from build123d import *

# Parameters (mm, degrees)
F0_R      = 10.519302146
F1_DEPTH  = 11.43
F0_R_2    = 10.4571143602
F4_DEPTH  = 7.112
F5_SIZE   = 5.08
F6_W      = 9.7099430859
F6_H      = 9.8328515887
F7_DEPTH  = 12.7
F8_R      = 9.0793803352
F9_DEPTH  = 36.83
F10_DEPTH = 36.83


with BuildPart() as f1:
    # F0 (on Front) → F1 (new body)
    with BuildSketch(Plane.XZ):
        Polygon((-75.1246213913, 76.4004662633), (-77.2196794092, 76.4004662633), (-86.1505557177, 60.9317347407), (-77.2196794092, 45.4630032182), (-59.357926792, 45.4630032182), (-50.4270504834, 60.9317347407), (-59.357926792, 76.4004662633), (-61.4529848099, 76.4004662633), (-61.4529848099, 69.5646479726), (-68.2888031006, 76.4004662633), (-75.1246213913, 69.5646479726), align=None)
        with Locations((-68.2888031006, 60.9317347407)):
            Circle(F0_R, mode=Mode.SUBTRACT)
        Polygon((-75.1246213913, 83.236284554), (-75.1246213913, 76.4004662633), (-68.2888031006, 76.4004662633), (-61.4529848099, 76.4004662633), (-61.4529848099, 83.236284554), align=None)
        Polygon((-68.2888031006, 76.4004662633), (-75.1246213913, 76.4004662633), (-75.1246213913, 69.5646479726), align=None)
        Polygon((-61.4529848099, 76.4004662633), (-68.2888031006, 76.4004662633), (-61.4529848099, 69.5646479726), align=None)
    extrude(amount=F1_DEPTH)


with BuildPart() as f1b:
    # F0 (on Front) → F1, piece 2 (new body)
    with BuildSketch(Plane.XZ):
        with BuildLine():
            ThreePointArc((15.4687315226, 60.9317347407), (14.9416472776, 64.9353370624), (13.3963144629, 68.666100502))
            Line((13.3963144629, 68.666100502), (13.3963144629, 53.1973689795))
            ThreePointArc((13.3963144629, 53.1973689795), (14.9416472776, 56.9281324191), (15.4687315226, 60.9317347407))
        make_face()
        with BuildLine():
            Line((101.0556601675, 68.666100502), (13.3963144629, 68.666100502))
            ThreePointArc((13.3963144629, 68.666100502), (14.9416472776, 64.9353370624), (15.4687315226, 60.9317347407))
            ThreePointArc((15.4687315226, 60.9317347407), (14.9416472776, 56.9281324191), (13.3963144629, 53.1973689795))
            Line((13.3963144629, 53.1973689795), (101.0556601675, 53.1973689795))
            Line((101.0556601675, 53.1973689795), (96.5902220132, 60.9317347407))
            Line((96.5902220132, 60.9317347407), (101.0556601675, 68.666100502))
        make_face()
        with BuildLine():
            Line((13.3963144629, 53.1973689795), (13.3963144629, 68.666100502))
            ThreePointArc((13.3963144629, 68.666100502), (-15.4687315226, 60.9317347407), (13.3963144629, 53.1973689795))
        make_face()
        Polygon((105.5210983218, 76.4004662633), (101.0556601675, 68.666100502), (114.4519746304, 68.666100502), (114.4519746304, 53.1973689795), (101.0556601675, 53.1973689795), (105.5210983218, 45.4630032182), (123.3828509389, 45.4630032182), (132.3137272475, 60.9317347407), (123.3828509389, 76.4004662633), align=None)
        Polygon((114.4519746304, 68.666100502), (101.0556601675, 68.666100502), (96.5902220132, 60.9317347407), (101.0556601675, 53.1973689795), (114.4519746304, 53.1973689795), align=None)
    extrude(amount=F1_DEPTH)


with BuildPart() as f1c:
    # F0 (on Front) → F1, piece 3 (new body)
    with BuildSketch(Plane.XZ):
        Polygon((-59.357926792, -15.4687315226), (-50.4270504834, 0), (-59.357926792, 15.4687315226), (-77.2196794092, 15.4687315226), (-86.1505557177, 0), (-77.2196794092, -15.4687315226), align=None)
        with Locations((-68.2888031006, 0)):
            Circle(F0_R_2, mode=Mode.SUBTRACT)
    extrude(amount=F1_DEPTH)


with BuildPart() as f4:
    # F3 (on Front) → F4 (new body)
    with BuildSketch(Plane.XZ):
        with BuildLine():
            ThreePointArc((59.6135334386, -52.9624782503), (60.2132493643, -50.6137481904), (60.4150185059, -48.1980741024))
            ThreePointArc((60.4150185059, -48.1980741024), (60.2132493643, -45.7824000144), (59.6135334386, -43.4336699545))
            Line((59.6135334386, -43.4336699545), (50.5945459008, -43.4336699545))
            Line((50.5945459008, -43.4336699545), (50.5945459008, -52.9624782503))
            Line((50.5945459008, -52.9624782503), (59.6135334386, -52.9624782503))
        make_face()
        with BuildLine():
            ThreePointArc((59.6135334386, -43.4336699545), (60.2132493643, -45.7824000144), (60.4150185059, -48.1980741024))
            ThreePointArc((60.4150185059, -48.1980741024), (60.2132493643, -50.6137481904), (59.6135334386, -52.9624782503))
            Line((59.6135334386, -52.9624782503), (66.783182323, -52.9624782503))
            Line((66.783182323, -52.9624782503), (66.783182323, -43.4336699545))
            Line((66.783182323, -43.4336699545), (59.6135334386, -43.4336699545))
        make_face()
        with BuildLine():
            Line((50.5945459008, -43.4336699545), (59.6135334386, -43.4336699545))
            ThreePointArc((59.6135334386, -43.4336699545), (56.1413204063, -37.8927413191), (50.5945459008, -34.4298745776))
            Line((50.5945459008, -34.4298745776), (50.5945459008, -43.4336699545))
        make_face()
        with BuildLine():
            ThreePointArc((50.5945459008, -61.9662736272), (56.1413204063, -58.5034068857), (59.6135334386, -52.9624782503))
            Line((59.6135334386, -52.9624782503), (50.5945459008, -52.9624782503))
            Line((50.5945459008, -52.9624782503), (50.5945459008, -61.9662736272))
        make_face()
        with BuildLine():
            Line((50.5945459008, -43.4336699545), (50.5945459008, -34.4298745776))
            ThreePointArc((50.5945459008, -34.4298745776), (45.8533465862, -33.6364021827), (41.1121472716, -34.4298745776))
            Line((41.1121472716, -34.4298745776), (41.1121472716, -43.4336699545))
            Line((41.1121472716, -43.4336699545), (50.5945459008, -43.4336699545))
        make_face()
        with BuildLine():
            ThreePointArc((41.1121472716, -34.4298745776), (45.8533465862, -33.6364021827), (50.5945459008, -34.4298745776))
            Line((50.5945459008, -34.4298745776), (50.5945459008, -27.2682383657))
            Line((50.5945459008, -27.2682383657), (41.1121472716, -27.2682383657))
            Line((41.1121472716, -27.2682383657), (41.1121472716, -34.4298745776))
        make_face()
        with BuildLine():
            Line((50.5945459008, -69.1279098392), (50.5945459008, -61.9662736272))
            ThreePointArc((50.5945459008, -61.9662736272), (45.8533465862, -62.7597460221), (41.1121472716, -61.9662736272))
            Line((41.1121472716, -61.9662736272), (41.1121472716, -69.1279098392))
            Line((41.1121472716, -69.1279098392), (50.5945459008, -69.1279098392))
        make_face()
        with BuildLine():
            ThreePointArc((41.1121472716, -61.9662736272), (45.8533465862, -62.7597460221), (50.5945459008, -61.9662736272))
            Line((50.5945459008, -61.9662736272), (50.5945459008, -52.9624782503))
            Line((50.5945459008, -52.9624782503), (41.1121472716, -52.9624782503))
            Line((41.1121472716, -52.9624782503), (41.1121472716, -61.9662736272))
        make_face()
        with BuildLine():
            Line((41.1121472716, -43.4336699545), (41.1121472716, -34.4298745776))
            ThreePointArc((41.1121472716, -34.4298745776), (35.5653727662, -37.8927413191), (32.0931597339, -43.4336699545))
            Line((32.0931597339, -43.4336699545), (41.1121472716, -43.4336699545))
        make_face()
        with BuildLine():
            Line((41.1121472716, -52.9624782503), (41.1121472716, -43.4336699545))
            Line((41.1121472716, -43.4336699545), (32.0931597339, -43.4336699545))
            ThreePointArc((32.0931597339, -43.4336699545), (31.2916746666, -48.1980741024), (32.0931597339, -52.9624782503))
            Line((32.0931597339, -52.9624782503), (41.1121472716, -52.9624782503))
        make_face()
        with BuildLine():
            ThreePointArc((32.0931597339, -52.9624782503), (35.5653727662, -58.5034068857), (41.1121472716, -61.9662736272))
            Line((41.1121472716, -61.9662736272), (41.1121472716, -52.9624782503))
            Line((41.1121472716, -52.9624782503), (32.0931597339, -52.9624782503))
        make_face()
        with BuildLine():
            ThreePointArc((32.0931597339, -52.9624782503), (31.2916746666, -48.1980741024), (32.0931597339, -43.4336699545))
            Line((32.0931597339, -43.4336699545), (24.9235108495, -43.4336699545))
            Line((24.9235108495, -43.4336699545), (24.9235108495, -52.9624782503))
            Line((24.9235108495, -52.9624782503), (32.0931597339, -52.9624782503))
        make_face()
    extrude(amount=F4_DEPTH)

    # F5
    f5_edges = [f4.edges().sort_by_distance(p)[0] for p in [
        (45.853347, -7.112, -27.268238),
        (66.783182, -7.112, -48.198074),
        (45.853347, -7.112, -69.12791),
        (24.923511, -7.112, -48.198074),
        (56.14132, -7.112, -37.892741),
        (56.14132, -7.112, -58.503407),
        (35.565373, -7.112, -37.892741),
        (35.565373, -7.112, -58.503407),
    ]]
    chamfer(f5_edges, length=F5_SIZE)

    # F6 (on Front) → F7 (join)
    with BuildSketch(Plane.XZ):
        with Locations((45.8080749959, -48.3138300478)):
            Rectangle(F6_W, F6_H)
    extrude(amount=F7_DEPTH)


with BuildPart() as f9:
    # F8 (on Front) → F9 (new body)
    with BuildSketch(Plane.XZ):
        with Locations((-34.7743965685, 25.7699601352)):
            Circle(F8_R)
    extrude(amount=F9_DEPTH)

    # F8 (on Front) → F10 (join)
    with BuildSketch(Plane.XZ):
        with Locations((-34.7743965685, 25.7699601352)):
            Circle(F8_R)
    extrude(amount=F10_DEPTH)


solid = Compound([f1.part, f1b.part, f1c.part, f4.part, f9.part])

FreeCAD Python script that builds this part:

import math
import FreeCAD as App
import Part
import Sketcher
from FreeCAD import Vector
Q = App.Units.Quantity


def edges_at(feature, points):
    """Names of the edges that pass closest to the given points."""
    edges = feature.Shape.Edges
    near = lambda p: min(range(len(edges)), key=lambda i: edges[i].distToShape(Part.Vertex(*p))[0])
    return sorted({f"Edge{near(p) + 1}" for p in points})

doc = App.newDocument("Part")
body = doc.addObject("PartDesign::Body", "Body")

# Sketch on XZ plane
sketch1 = doc.addObject("Sketcher::SketchObject", "Sketch")
body.addObject(sketch1)
sketch1.AttachmentSupport = (doc.XZ_Plane, [""])
sketch1.MapMode = "FlatFace"
sketch1.addGeometry([
    Part.LineSegment(Vector(-59.357927, 76.400466, 0), Vector(-61.452985, 76.400466, 0)),  # 0
    Part.LineSegment(Vector(-61.452985, 76.400466, 0), Vector(-61.452985, 83.236285, 0)),  # 1
    Part.LineSegment(Vector(-61.452985, 83.236285, 0), Vector(-75.124621, 83.236285, 0)),  # 2
    Part.LineSegment(Vector(-75.124621, 83.236285, 0), Vector(-75.124621, 76.400466, 0)),  # 3
    Part.LineSegment(Vector(-75.124621, 76.400466, 0), Vector(-77.219679, 76.400466, 0)),  # 4
    Part.LineSegment(Vector(-77.219679, 76.400466, 0), Vector(-86.150556, 60.931735, 0)),  # 5
    Part.LineSegment(Vector(-86.150556, 60.931735, 0), Vector(-77.219679, 45.463003, 0)),  # 6
    Part.LineSegment(Vector(-77.219679, 45.463003, 0), Vector(-59.357927, 45.463003, 0)),  # 7
    Part.LineSegment(Vector(-59.357927, 45.463003, 0), Vector(-50.42705, 60.931735, 0)),  # 8
    Part.LineSegment(Vector(-50.42705, 60.931735, 0), Vector(-59.357927, 76.400466, 0)),  # 9
    Part.Circle(Vector(-68.288803, 60.931735, 0), Vector(0, 0, 1), 10.519302),  # 10
], False)
sketch1.addConstraint([
    Sketcher.Constraint("Coincident", 0, 2, 1, 1),
    Sketcher.Constraint("Coincident", 1, 2, 2, 1),
    Sketcher.Constraint("Coincident", 2, 2, 3, 1),
    Sketcher.Constraint("Coincident", 3, 2, 4, 1),
    Sketcher.Constraint("Coincident", 4, 2, 5, 1),
    Sketcher.Constraint("Coincident", 5, 2, 6, 1),
    Sketcher.Constraint("Coincident", 6, 2, 7, 1),
    Sketcher.Constraint("Coincident", 7, 2, 8, 1),
    Sketcher.Constraint("Coincident", 8, 2, 9, 1),
    Sketcher.Constraint("Coincident", 9, 2, 0, 1),
    Sketcher.Constraint("Horizontal", 0),
    Sketcher.Constraint("Vertical", 1),
    Sketcher.Constraint("Horizontal", 2),
    Sketcher.Constraint("Vertical", 3),
    Sketcher.Constraint("Horizontal", 4),
    Sketcher.Constraint("Horizontal", 7),
    Sketcher.Constraint("Parallel", 5, 8),
    Sketcher.Constraint("Parallel", 6, 9),
    Sketcher.Constraint("Horizontal", 0, 2, 3, 2),
    Sketcher.Constraint("Horizontal", 10, 3, 5, 2),
    Sketcher.Constraint("Horizontal", 5, 2, 8, 2),
    Sketcher.Constraint("Vertical", 4, 2, 6, 2),
    Sketcher.Constraint("Vertical", 7, 2, 9, 2),
    Sketcher.Constraint("Equal", 0, 4),
    Sketcher.Constraint("Angle", 5, Q("-120 deg")),
    Sketcher.Constraint("Diameter", 10, 21.038604),
    Sketcher.Constraint("DistanceX", 0, 2, 0, 1, 2.095058),
    Sketcher.Constraint("DistanceY", 1, 1, 1, 2, 6.835818),
    Sketcher.Constraint("DistanceX", 2, 2, 2, 1, 13.671637),
    Sketcher.Constraint("DistanceX", 2, 2, -1, 1, 75.124621),
    Sketcher.Constraint("DistanceX", 8, 2, -1, 1, 50.42705),
    Sketcher.Constraint("DistanceX", 10, 3, 0, 2, 6.835818),
    Sketcher.Constraint("DistanceY", -1, 1, 10, 3, 60.931735),
])
pad1 = doc.addObject("PartDesign::Pad", "Pad")
body.addObject(pad1)
pad1.Profile = sketch1
pad1.Length = Q("0.45 in")
body2 = doc.addObject("PartDesign::Body", "Body001")

# Sketch on XZ plane
sketch2 = doc.addObject("Sketcher::SketchObject", "Sketch001")
body2.addObject(sketch2)
sketch2.AttachmentSupport = (doc.getObject("XZ_Plane001"), [""])
sketch2.MapMode = "FlatFace"
sketch2.addGeometry([
    Part.LineSegment(Vector(13.396314, 53.197369, 0), Vector(101.05566, 53.197369, 0)),  # 0
    Part.LineSegment(Vector(101.05566, 53.197369, 0), Vector(105.521098, 45.463003, 0)),  # 1
    Part.LineSegment(Vector(105.521098, 45.463003, 0), Vector(123.382851, 45.463003, 0)),  # 2
    Part.LineSegment(Vector(123.382851, 45.463003, 0), Vector(132.313727, 60.931735, 0)),  # 3
    Part.LineSegment(Vector(132.313727, 60.931735, 0), Vector(123.382851, 76.400466, 0)),  # 4
    Part.LineSegment(Vector(123.382851, 76.400466, 0), Vector(105.521098, 76.400466, 0)),  # 5
    Part.LineSegment(Vector(105.521098, 76.400466, 0), Vector(101.05566, 68.666101, 0)),  # 6
    Part.LineSegment(Vector(101.05566, 68.666101, 0), Vector(13.396314, 68.666101, 0)),  # 7
    Part.ArcOfCircle(Part.Circle(Vector(0, 60.931735, 0), Vector(0, 0, 1), 15.468732), math.radians(30), math.radians(330)),  # 8
], False)
sketch2.addConstraint([
    Sketcher.Constraint("Coincident", 0, 2, 1, 1),
    Sketcher.Constraint("Coincident", 1, 2, 2, 1),
    Sketcher.Constraint("Coincident", 2, 2, 3, 1),
    Sketcher.Constraint("Coincident", 3, 2, 4, 1),
    Sketcher.Constraint("Coincident", 4, 2, 5, 1),
    Sketcher.Constraint("Coincident", 5, 2, 6, 1),
    Sketcher.Constraint("Coincident", 6, 2, 7, 1),
    Sketcher.Constraint("Coincident", 7, 2, 8, 1),
    Sketcher.Constraint("Coincident", 8, 2, 0, 1),
    Sketcher.Constraint("Horizontal", 0),
    Sketcher.Constraint("Horizontal", 2),
    Sketcher.Constraint("Horizontal", 5),
    Sketcher.Constraint("Horizontal", 7),
    Sketcher.Constraint("PointOnObject", 8, 3, -2),
    Sketcher.Constraint("Parallel", 1, 4),
    Sketcher.Constraint("Parallel", 3, 6),
    Sketcher.Constraint("Horizontal", 8, 3, 3, 2),
    Sketcher.Constraint("Vertical", 2, 2, 4, 2),
    Sketcher.Constraint("Vertical", 1, 2, 5, 2),
    Sketcher.Constraint("Vertical", 0, 2, 6, 2),
    Sketcher.Constraint("Vertical", 7, 2, 8, 2),
    Sketcher.Constraint("Angle", 1, Q("-60 deg")),
    Sketcher.Constraint("Radius", 8, 15.468732),
    Sketcher.Constraint("DistanceX", -1, 1, 1, 2, 105.521098),
    Sketcher.Constraint("DistanceY", -1, 1, 6, 2, 68.666101),
    Sketcher.Constraint("DistanceX", 0, 1, 0, 2, 87.659346),
    Sketcher.Constraint("DistanceX", 2, 1, 2, 2, 17.861753),
    Sketcher.Constraint("DistanceX", -1, 1, 0, 2, 101.05566),
])
pad2 = doc.addObject("PartDesign::Pad", "Pad001")
body2.addObject(pad2)
pad2.Profile = sketch2
pad2.Length = Q("0.45 in")
body3 = doc.addObject("PartDesign::Body", "Body002")

# Sketch on XZ plane
sketch3 = doc.addObject("Sketcher::SketchObject", "Sketch002")
body3.addObject(sketch3)
sketch3.AttachmentSupport = (doc.getObject("XZ_Plane002"), [""])
sketch3.MapMode = "FlatFace"
sketch3.addGeometry([
    Part.LineSegment(Vector(-59.357927, -15.468732, 0), Vector(-50.42705, 0, 0)),  # 0
    Part.LineSegment(Vector(-50.42705, 0, 0), Vector(-59.357927, 15.468732, 0)),  # 1
    Part.LineSegment(Vector(-59.357927, 15.468732, 0), Vector(-77.219679, 15.468732, 0)),  # 2
    Part.LineSegment(Vector(-77.219679, 15.468732, 0), Vector(-86.150556, 0, 0)),  # 3
    Part.LineSegment(Vector(-86.150556, 0, 0), Vector(-77.219679, -15.468732, 0)),  # 4
    Part.LineSegment(Vector(-77.219679, -15.468732, 0), Vector(-59.357927, -15.468732, 0)),  # 5
    Part.Circle(Vector(-68.288803, 0, 0), Vector(0, 0, 1), 10.457114),  # 6
], False)
sketch3.addConstraint([
    Sketcher.Constraint("Coincident", 0, 2, 1, 1),
    Sketcher.Constraint("Coincident", 1, 2, 2, 1),
    Sketcher.Constraint("Coincident", 2, 2, 3, 1),
    Sketcher.Constraint("Coincident", 3, 2, 4, 1),
    Sketcher.Constraint("Coincident", 4, 2, 5, 1),
    Sketcher.Constraint("Coincident", 5, 2, 0, 1),
    Sketcher.Constraint("Horizontal", 2),
    Sketcher.Constraint("Horizontal", 5),
    Sketcher.Constraint("Symmetric", 2, 2, 4, 2, -1),
    Sketcher.Constraint("PointOnObject", 6, 3, -1),
    Sketcher.Constraint("PointOnObject", 0, 2, -1),
    Sketcher.Constraint("PointOnObject", 3, 2, -1),
    Sketcher.Constraint("Parallel", 0, 3),
    Sketcher.Constraint("Parallel", 1, 4),
    Sketcher.Constraint("Angle", 0, Q("60 deg")),
    Sketcher.Constraint("Diameter", 6, 20.914229),
    Sketcher.Constraint("DistanceX", 2, 2, 2, 1, 17.861753),
    Sketcher.Constraint("DistanceX", 0, 2, -1, 1, 50.42705),
    Sketcher.Constraint("DistanceY", -1, 1, 1, 2, 15.468732),
    Sketcher.Constraint("DistanceX", 6, 3, -1, 1, 68.288803),
])
pad3 = doc.addObject("PartDesign::Pad", "Pad002")
body3.addObject(pad3)
pad3.Profile = sketch3
pad3.Length = Q("0.45 in")
body4 = doc.addObject("PartDesign::Body", "Body003")

# Sketch on XZ plane
sketch4 = doc.addObject("Sketcher::SketchObject", "Sketch003")
body4.addObject(sketch4)
sketch4.AttachmentSupport = (doc.getObject("XZ_Plane003"), [""])
sketch4.MapMode = "FlatFace"
sketch4.addGeometry([
    Part.ArcOfCircle(Part.Circle(Vector(45.853347, -48.198074, 0), Vector(0, 0, 1), 14.561672), math.radians(-160.901814), math.radians(-109.001592)),  # 0
    Part.LineSegment(Vector(41.112147, -61.966274, 0), Vector(41.112147, -69.12791, 0)),  # 1
    Part.LineSegment(Vector(41.112147, -69.12791, 0), Vector(50.594546, -69.12791, 0)),  # 2
    Part.LineSegment(Vector(50.594546, -69.12791, 0), Vector(50.594546, -61.966274, 0)),  # 3
    Part.ArcOfCircle(Part.Circle(Vector(45.853347, -48.198074, 0), Vector(0, 0, 1), 14.561672), math.radians(-70.998408), math.radians(-19.098186)),  # 4
    Part.LineSegment(Vector(59.613533, -52.962478, 0), Vector(66.783182, -52.962478, 0)),  # 5
    Part.LineSegment(Vector(66.783182, -52.962478, 0), Vector(66.783182, -43.43367, 0)),  # 6
    Part.LineSegment(Vector(66.783182, -43.43367, 0), Vector(59.613533, -43.43367, 0)),  # 7
    Part.ArcOfCircle(Part.Circle(Vector(45.853347, -48.198074, 0), Vector(0, 0, 1), 14.561672), math.radians(19.098186), math.radians(70.998408)),  # 8
    Part.LineSegment(Vector(50.594546, -34.429875, 0), Vector(50.594546, -27.268238, 0)),  # 9
    Part.LineSegment(Vector(50.594546, -27.268238, 0), Vector(41.112147, -27.268238, 0)),  # 10
    Part.LineSegment(Vector(41.112147, -27.268238, 0), Vector(41.112147, -34.429875, 0)),  # 11
    Part.ArcOfCircle(Part.Circle(Vector(45.853347, -48.198074, 0), Vector(0, 0, 1), 14.561672), math.radians(109.001592), math.radians(160.901814)),  # 12
    Part.LineSegment(Vector(32.09316, -43.43367, 0), Vector(24.923511, -43.43367, 0)),  # 13
    Part.LineSegment(Vector(24.923511, -43.43367, 0), Vector(24.923511, -52.962478, 0)),  # 14
    Part.LineSegment(Vector(24.923511, -52.962478, 0), Vector(32.09316, -52.962478, 0)),  # 15
    Part.LineSegment(Vector(50.594546, -52.962478, 0), Vector(41.112147, -52.962478, 0)),  # 16
    Part.LineSegment(Vector(41.112147, -52.962478, 0), Vector(41.112147, -43.43367, 0)),  # 17
    Part.LineSegment(Vector(41.112147, -43.43367, 0), Vector(50.594546, -43.43367, 0)),  # 18
    Part.LineSegment(Vector(50.594546, -43.43367, 0), Vector(50.594546, -52.962478, 0)),  # 19
], False)
sketch4.addConstraint([
    Sketcher.Constraint("Coincident", 0, 2, 1, 1),
    Sketcher.Constraint("Coincident", 1, 2, 2, 1),
    Sketcher.Constraint("Coincident", 2, 2, 3, 1),
    Sketcher.Constraint("Coincident", 3, 2, 4, 1),
    Sketcher.Constraint("Coincident", 4, 2, 5, 1),
    Sketcher.Constraint("Coincident", 5, 2, 6, 1),
    Sketcher.Constraint("Coincident", 6, 2, 7, 1),
    Sketcher.Constraint("Coincident", 7, 2, 8, 1),
    Sketcher.Constraint("Coincident", 8, 2, 9, 1),
    Sketcher.Constraint("Coincident", 9, 2, 10, 1),
    Sketcher.Constraint("Coincident", 10, 2, 11, 1),
    Sketcher.Constraint("Coincident", 11, 2, 12, 1),
    Sketcher.Constraint("Coincident", 12, 2, 13, 1),
    Sketcher.Constraint("Coincident", 13, 2, 14, 1),
    Sketcher.Constraint("Coincident", 14, 2, 15, 1),
    Sketcher.Constraint("Coincident", 15, 2, 0, 1),
    Sketcher.Constraint("Coincident", 16, 2, 17, 1),
    Sketcher.Constraint("Coincident", 17, 2, 18, 1),
    Sketcher.Constraint("Coincident", 18, 2, 19, 1),
    Sketcher.Constraint("Coincident", 19, 2, 16, 1),
    Sketcher.Constraint("Vertical", 1),
    Sketcher.Constraint("Horizontal", 2),
    Sketcher.Constraint("Vertical", 3),
    Sketcher.Constraint("Horizontal", 5),
    Sketcher.Constraint("Vertical", 6),
    Sketcher.Constraint("Horizontal", 7),
    Sketcher.Constraint("Vertical", 9),
    Sketcher.Constraint("Horizontal", 10),
    Sketcher.Constraint("Vertical", 11),
    Sketcher.Constraint("Horizontal", 13),
    Sketcher.Constraint("Vertical", 14),
    Sketcher.Constraint("Horizontal", 15),
    Sketcher.Constraint("Horizontal", 16),
    Sketcher.Constraint("Vertical", 17),
    Sketcher.Constraint("Horizontal", 18),
    Sketcher.Constraint("Vertical", 19),
    Sketcher.Constraint("Coincident", 4, 3, 0, 3),
    Sketcher.Constraint("Coincident", 8, 3, 0, 3),
    Sketcher.Constraint("Coincident", 12, 3, 0, 3),
    Sketcher.Constraint("Equal", 0, 4),
    Sketcher.Constraint("Equal", 4, 8),
    Sketcher.Constraint("Equal", 8, 12),
    Sketcher.Constraint("Horizontal", 0, 2, 3, 2),
    Sketcher.Constraint("Horizontal", 8, 2, 11, 2),
    Sketcher.Constraint("Horizontal", 7, 2, 12, 2),
    Sketcher.Constraint("Horizontal", 5, 2, 14, 2),
    Sketcher.Constraint("Horizontal", 15, 2, 16, 2),
    Sketcher.Constraint("Horizontal", 13, 2, 17, 2),
    Sketcher.Constraint("Vertical", 4, 2, 7, 2),
    Sketcher.Constraint("Vertical", 3, 2, 8, 2),
    Sketcher.Constraint("Vertical", 11, 2, 16, 2),
    Sketcher.Constraint("Vertical", 9, 2, 18, 2),
    Sketcher.Constraint("Equal", 7, 13),
    Sketcher.Constraint("Equal", 3, 9),
    Sketcher.Constraint("Radius", 0, 14.561672),
    Sketcher.Constraint("DistanceX", 2, 1, 2, 2, 9.482399),
    Sketcher.Constraint("DistanceX", 5, 1, 5, 2, 7.169649),
    Sketcher.Constraint("DistanceY", 6, 1, 6, 2, 9.528808),
    Sketcher.Constraint("DistanceY", 1, 2, 1, 1, 7.161636),
    Sketcher.Constraint("DistanceY", 1, 2, -1, 1, 69.12791),
    Sketcher.Constraint("DistanceX", -1, 1, 12, 2, 32.09316),
])
pad4 = doc.addObject("PartDesign::Pad", "Pad003")
body4.addObject(pad4)
pad4.Profile = sketch4
pad4.Length = Q("0.28 in")
doc.recompute()

chamfer = doc.addObject("PartDesign::Chamfer", "Chamfer")
body4.addObject(chamfer)
chamfer.Base = (pad4, edges_at(pad4, [
    (45.853, -7.112, -27.268),
    (66.783, -7.112, -48.198),
    (45.853, -7.112, -69.128),
    (24.924, -7.112, -48.198),
    (56.141, -7.112, -37.893),
    (56.141, -7.112, -58.503),
    (35.565, -7.112, -37.893),
    (35.565, -7.112, -58.503),
]))
chamfer.Size = Q("0.2 in")

# Sketch on XZ plane
sketch5 = doc.addObject("Sketcher::SketchObject", "Sketch004")
body4.addObject(sketch5)
sketch5.AttachmentSupport = (doc.getObject("XZ_Plane003"), [""])
sketch5.MapMode = "FlatFace"
sketch5.addGeometry([
    Part.LineSegment(Vector(40.953103, -43.397404, 0), Vector(40.953103, -53.230256, 0)),
    Part.LineSegment(Vector(40.953103, -53.230256, 0), Vector(50.663047, -53.230256, 0)),
    Part.LineSegment(Vector(50.663047, -53.230256, 0), Vector(50.663047, -43.397404, 0)),
    Part.LineSegment(Vector(50.663047, -43.397404, 0), Vector(40.953103, -43.397404, 0)),
], False)
sketch5.addConstraint([
    Sketcher.Constraint("Coincident", 0, 2, 1, 1),
    Sketcher.Constraint("Coincident", 1, 2, 2, 1),
    Sketcher.Constraint("Coincident", 2, 2, 3, 1),
    Sketcher.Constraint("Coincident", 3, 2, 0, 1),
    Sketcher.Constraint("Vertical", 0),
    Sketcher.Constraint("Horizontal", 1),
    Sketcher.Constraint("Vertical", 2),
    Sketcher.Constraint("Horizontal", 3),
    Sketcher.Constraint("DistanceY", 0, 2, 0, 1, 9.832852),
    Sketcher.Constraint("DistanceX", 1, 1, 1, 2, 9.709943),
    Sketcher.Constraint("DistanceX", -1, 1, 0, 2, 40.953103),
    Sketcher.Constraint("DistanceY", 0, 2, -1, 1, 53.230256),
])
pad5 = doc.addObject("PartDesign::Pad", "Pad004")
body4.addObject(pad5)
pad5.Profile = sketch5
pad5.Length = Q("0.5 in")
body5 = doc.addObject("PartDesign::Body", "Body004")

# Sketch on XZ plane
sketch6 = doc.addObject("Sketcher::SketchObject", "Sketch005")
body5.addObject(sketch6)
sketch6.AttachmentSupport = (doc.getObject("XZ_Plane004"), [""])
sketch6.MapMode = "FlatFace"
sketch6.addGeometry(Part.Circle(Vector(-34.774397, 25.76996, 0), Vector(0, 0, 1), 9.07938), False)
sketch6.addConstraint([
    Sketcher.Constraint("Diameter", 0, 18.158761),
    Sketcher.Constraint("DistanceY", -1, 1, 0, 3, 25.76996),
    Sketcher.Constraint("DistanceX", 0, 3, -1, 1, 34.774397),
])
pad6 = doc.addObject("PartDesign::Pad", "Pad005")
body5.addObject(pad6)
pad6.Profile = sketch6
pad6.Length = Q("1.45 in")

# Sketch on XZ plane
sketch7 = doc.addObject("Sketcher::SketchObject", "Sketch006")
body5.addObject(sketch7)
sketch7.AttachmentSupport = (doc.getObject("XZ_Plane004"), [""])
sketch7.MapMode = "FlatFace"
sketch7.addGeometry(Part.Circle(Vector(-34.774397, 25.76996, 0), Vector(0, 0, 1), 9.07938), False)
sketch7.addConstraint([
    Sketcher.Constraint("Diameter", 0, 18.158761),
    Sketcher.Constraint("DistanceY", -1, 1, 0, 3, 25.76996),
    Sketcher.Constraint("DistanceX", 0, 3, -1, 1, 34.774397),
])
pad7 = doc.addObject("PartDesign::Pad", "Pad006")
body5.addObject(pad7)
pad7.Profile = sketch7
pad7.Length = Q("1.45 in")

doc.recompute()
